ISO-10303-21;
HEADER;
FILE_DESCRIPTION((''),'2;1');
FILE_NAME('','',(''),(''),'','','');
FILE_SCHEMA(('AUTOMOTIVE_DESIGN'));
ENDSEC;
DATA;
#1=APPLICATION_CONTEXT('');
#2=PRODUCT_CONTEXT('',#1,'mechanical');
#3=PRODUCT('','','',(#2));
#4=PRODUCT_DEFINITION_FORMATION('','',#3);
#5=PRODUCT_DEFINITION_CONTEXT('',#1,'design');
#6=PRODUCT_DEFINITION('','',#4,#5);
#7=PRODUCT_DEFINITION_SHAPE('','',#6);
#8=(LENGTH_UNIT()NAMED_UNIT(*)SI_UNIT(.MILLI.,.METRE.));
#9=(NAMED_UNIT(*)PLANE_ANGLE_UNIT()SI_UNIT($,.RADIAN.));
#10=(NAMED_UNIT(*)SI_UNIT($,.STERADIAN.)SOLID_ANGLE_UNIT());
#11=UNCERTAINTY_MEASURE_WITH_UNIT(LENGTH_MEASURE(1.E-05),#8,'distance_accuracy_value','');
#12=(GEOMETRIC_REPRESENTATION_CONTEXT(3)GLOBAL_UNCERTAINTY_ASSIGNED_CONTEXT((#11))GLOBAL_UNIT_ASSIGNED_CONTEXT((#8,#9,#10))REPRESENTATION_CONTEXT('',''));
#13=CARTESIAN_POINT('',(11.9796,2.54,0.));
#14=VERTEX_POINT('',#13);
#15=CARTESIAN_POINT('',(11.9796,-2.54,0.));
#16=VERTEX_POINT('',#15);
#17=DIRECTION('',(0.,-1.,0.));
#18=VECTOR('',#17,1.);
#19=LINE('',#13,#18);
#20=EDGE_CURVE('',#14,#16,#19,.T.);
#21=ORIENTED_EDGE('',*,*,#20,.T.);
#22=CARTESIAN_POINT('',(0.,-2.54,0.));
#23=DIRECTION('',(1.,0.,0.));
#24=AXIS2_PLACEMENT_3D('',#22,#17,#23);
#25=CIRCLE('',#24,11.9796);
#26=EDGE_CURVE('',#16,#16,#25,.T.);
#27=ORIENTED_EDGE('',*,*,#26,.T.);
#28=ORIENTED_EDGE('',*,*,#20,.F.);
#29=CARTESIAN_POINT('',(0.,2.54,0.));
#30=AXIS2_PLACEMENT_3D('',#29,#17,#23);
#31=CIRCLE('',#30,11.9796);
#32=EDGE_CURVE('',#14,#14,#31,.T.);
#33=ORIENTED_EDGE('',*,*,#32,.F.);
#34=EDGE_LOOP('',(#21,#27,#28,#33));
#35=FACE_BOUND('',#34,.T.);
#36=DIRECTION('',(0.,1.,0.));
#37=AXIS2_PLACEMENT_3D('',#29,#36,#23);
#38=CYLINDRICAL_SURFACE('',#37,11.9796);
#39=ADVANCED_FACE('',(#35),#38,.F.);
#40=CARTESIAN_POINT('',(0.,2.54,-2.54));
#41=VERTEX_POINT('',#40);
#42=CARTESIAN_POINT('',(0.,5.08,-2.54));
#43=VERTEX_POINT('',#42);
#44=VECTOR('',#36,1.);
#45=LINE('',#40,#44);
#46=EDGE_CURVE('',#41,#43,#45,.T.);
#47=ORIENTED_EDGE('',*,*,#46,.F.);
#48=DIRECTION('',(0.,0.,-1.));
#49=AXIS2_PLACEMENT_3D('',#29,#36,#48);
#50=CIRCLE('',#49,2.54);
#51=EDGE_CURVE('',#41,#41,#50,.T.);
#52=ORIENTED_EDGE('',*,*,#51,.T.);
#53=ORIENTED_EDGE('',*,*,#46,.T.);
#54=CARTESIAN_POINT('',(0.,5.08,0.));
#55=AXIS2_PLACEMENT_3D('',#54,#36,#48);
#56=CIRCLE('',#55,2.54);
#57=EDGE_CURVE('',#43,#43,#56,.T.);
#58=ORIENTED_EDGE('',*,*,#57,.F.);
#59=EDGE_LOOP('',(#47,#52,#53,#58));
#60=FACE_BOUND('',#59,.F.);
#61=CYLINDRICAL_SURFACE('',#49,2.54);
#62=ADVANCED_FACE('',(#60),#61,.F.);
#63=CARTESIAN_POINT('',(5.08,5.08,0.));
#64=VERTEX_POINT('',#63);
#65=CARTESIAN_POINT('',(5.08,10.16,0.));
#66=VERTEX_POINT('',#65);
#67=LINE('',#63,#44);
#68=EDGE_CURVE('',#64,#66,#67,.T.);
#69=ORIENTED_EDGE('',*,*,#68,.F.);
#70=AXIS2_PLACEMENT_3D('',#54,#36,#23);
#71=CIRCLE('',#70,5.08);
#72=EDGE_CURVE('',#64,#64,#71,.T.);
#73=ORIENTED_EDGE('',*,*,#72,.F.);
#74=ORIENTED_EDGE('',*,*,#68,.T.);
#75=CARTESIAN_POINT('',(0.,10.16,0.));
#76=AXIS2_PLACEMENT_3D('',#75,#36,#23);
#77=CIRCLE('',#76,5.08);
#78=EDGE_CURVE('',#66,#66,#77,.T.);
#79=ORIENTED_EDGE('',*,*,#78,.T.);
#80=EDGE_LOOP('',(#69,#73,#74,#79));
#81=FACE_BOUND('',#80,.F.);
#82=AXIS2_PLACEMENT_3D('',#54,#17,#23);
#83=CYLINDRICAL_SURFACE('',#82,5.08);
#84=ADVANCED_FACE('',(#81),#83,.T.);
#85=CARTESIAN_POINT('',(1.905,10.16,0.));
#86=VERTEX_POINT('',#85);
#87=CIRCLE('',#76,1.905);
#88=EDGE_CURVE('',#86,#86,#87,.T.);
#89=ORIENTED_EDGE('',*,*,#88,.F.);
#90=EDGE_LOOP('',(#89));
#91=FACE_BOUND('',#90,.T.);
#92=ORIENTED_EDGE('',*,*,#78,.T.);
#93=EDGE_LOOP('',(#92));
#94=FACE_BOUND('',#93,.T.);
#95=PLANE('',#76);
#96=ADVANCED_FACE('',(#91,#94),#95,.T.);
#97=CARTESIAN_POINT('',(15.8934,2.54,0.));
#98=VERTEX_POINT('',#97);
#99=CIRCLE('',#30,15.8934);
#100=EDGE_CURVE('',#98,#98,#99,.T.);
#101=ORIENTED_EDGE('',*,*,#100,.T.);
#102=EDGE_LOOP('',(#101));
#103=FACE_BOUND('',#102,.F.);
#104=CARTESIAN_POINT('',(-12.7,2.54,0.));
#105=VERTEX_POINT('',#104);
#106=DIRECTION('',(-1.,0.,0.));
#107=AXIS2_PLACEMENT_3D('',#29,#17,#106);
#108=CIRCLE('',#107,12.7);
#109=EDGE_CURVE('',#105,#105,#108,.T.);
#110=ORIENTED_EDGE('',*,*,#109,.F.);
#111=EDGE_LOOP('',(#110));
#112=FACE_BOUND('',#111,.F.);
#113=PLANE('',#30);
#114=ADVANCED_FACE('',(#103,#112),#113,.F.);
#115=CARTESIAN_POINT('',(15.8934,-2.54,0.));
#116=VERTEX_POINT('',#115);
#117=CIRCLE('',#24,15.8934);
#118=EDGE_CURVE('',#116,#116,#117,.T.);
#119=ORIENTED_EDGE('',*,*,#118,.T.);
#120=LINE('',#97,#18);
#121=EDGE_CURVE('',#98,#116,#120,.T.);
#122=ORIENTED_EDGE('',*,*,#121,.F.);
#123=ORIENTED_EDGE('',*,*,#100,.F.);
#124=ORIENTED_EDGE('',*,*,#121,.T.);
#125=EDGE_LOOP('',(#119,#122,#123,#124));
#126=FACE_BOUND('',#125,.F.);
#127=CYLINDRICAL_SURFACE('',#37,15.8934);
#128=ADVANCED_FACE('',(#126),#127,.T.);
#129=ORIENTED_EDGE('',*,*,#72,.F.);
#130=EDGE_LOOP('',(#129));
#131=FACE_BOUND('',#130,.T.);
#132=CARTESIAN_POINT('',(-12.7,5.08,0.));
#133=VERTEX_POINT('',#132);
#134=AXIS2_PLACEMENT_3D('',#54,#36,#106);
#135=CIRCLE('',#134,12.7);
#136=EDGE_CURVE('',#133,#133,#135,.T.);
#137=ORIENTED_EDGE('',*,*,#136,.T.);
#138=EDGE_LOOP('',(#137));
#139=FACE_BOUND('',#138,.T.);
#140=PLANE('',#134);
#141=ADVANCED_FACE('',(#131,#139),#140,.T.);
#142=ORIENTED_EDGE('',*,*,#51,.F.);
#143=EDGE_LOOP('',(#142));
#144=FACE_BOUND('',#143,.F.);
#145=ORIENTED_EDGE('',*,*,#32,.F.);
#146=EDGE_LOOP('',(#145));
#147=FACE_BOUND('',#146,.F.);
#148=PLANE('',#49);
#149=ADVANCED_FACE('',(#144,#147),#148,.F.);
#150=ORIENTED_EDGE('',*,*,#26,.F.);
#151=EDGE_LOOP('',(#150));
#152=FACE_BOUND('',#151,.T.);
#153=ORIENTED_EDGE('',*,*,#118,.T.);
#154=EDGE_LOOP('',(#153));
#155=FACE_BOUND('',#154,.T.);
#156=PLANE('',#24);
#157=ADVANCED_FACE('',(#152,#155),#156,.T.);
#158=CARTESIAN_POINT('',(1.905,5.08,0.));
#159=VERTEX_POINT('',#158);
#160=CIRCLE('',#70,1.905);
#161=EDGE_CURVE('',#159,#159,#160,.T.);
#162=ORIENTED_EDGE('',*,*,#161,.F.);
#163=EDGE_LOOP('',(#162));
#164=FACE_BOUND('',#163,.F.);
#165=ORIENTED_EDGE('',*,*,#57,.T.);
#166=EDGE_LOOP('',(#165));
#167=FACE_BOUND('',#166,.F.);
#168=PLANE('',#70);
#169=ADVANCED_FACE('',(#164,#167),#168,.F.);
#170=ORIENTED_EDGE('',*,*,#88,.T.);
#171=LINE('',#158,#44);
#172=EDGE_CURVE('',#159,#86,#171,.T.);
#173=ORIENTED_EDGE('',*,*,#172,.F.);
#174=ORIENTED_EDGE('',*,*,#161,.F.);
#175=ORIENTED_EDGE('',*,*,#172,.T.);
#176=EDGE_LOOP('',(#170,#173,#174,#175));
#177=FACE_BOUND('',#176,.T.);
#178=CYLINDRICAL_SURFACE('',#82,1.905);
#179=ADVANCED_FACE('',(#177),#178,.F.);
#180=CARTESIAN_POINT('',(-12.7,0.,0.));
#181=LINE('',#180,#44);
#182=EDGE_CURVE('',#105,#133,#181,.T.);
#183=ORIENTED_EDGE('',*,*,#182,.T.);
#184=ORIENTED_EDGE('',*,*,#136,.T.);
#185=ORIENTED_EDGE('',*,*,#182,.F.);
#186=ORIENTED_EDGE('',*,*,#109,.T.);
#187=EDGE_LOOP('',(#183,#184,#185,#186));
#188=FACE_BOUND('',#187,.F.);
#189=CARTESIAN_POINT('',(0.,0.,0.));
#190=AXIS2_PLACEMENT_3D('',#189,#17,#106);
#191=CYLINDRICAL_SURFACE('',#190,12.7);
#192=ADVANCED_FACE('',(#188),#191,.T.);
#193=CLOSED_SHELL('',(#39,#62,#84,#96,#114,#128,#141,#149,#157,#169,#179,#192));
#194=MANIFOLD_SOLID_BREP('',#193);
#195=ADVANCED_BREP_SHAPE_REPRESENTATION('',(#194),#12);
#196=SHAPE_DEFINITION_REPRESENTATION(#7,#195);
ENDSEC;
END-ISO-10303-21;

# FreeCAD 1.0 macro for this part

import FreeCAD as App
import Part
import Sketcher
from FreeCAD import Vector
Q = App.Units.Quantity

doc = App.newDocument("Part")
body = doc.addObject("PartDesign::Body", "Body")

# Sketch on XZ plane
sketch1 = doc.addObject("Sketcher::SketchObject", "Sketch")
body.addObject(sketch1)
sketch1.AttachmentSupport = (doc.XZ_Plane, [""])
sketch1.MapMode = "FlatFace"
sketch1.addGeometry(Part.Circle(Vector(0, 0, 0), Vector(0, 0, 1), 13), False)
sketch1.addConstraint([
    Sketcher.Constraint("Coincident", 0, 3, -1, 1),
    Sketcher.Constraint("Diameter", 0, Q("1 in")),
])
pad1 = doc.addObject("PartDesign::Pad", "Pad")
body.addObject(pad1)
pad1.Profile = sketch1
pad1.Length = Q("0.2 in")
pad1.Reversed = True

# Sketch on XZ plane
sketch2 = doc.addObject("Sketcher::SketchObject", "Sketch001")
body.addObject(sketch2)
sketch2.AttachmentSupport = (doc.XZ_Plane, [""])
sketch2.MapMode = "FlatFace"
sketch2.addGeometry(Part.Circle(Vector(0, 0, 0), Vector(0, 0, 1), 2.5), False)
sketch2.addConstraint([
    Sketcher.Constraint("Coincident", 0, 3, -1, 1),
    Sketcher.Constraint("Diameter", 0, Q("0.2 in")),
])
doc.recompute()
hole = doc.addObject("PartDesign::Hole", "Hole")
body.addObject(hole)
hole.Profile = sketch2
hole.ThreadType = "None"
hole.Diameter = Q("0.2 in")
hole.DepthType = "ThroughAll"
hole.HoleCutType = "Counterbore"
hole.HoleCutDiameter = Q("1.5 in")
hole.HoleCutDepth = Q("0.1 in")

# Sketch on XZ plane
sketch3 = doc.addObject("Sketcher::SketchObject", "Sketch002")
body.addObject(sketch3)
sketch3.AttachmentSupport = (doc.XZ_Plane, [""])
sketch3.MapMode = "FlatFace"
sketch3.AttachmentOffset = App.Placement(Vector(0, 0, -0.1 * 25.4), App.Rotation())
sketch3.addGeometry([
    Part.Circle(Vector(0, 0, 0), Vector(0, 0, 1), 16),
    Part.Circle(Vector(0, 0, 0), Vector(0, 0, 1), 12),
], False)
sketch3.addConstraint([
    Sketcher.Constraint("Coincident", 0, 3, -1, 1),
    Sketcher.Constraint("Coincident", 1, 3, -1, 1),
    Sketcher.Constraint("Diameter", 0, Q("31.7868 mm")),
    Sketcher.Constraint("Diameter", 1, Q("23.9592 mm")),
])
pad2 = doc.addObject("PartDesign::Pad", "Pad001")
body.addObject(pad2)
pad2.Profile = sketch3
pad2.Length = Q("0.2 in")

# Sketch on XZ plane
sketch4 = doc.addObject("Sketcher::SketchObject", "Sketch003")
body.addObject(sketch4)
sketch4.AttachmentSupport = (doc.XZ_Plane, [""])
sketch4.MapMode = "FlatFace"
sketch4.AttachmentOffset = App.Placement(Vector(0, 0, -0.2 * 25.4), App.Rotation())
sketch4.addGeometry(Part.Circle(Vector(0, 0, 0), Vector(0, 0, 1), 5), False)
sketch4.addConstraint([
    Sketcher.Constraint("Coincident", 0, 3, -1, 1),
    Sketcher.Constraint("Diameter", 0, Q("0.4 in")),
])
pad3 = doc.addObject("PartDesign::Pad", "Pad002")
body.addObject(pad3)
pad3.Profile = sketch4
pad3.Length = Q("0.2 in")
pad3.Reversed = True

# Sketch on XZ plane
sketch5 = doc.addObject("Sketcher::SketchObject", "Sketch004")
body.addObject(sketch5)
sketch5.AttachmentSupport = (doc.XZ_Plane, [""])
sketch5.MapMode = "FlatFace"
sketch5.AttachmentOffset = App.Placement(Vector(0, 0, -0.2 * 25.4), App.Rotation())
sketch5.addGeometry(Part.Circle(Vector(0, 0, 0), Vector(0, 0, 1), 1.9), False)
sketch5.addConstraint([
    Sketcher.Constraint("Coincident", 0, 3, -1, 1),
    Sketcher.Constraint("Diameter", 0, Q("0.15 in")),
])
pocket1 = doc.addObject("PartDesign::Pocket", "Pocket")
body.addObject(pocket1)
pocket1.Profile = sketch5
pocket1.Length = Q("0.2 in")

doc.recompute()
